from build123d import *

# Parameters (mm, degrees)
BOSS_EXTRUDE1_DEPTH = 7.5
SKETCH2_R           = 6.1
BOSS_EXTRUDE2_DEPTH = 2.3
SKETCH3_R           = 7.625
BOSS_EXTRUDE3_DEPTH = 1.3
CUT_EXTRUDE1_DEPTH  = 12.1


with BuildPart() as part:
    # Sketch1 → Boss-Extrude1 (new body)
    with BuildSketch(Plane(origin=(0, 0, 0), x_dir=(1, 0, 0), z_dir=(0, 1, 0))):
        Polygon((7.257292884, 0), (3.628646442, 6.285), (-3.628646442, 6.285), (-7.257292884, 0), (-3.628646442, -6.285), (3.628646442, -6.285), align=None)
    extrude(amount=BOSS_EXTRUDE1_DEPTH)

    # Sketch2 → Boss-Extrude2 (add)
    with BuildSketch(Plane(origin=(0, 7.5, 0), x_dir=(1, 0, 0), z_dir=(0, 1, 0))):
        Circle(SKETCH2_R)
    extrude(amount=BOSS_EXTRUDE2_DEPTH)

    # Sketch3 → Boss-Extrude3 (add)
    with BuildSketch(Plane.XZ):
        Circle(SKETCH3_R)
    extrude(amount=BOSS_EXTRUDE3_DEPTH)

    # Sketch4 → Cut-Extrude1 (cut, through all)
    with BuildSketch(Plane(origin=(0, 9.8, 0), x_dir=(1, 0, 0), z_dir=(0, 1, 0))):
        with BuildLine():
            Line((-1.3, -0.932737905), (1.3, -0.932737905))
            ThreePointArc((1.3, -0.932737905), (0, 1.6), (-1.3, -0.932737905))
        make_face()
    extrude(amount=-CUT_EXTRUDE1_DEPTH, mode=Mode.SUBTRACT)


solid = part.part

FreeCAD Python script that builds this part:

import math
import FreeCAD as App
import Part
import Sketcher
from FreeCAD import Vector
Q = App.Units.Quantity

doc = App.newDocument("Part")
body = doc.addObject("PartDesign::Body", "Body")

# Sketch on XZ plane
sketch1 = body.newObject("Sketcher::SketchObject", "Sketch")
sketch1.AttachmentSupport = (doc.getObject("XZ_Plane"), [""])
sketch1.MapMode = "FlatFace"
sketch1.addGeometry(Part.LineSegment(Vector(7, 0, 0), Vector(4, -6, 0)), False)
sketch1.addGeometry(Part.LineSegment(Vector(4, -6, 0), Vector(-4, -6, 0)), False)
sketch1.addGeometry(Part.LineSegment(Vector(-4, -6, 0), Vector(-7, 0, 0)), False)
sketch1.addGeometry(Part.LineSegment(Vector(-7, 0, 0), Vector(-4, 6, 0)), False)
sketch1.addGeometry(Part.LineSegment(Vector(-4, 6, 0), Vector(4, 6, 0)), False)
sketch1.addGeometry(Part.LineSegment(Vector(4, 6, 0), Vector(7, 0, 0)), False)
sketch1.addConstraint(Sketcher.Constraint("Coincident", 0, 2, 1, 1))
sketch1.addConstraint(Sketcher.Constraint("Coincident", 1, 2, 2, 1))
sketch1.addConstraint(Sketcher.Constraint("Coincident", 2, 2, 3, 1))
sketch1.addConstraint(Sketcher.Constraint("Coincident", 3, 2, 4, 1))
sketch1.addConstraint(Sketcher.Constraint("Coincident", 4, 2, 5, 1))
sketch1.addConstraint(Sketcher.Constraint("Coincident", 5, 2, 0, 1))
sketch1.addConstraint(Sketcher.Constraint("Horizontal", 1))
sketch1.addConstraint(Sketcher.Constraint("Horizontal", 4))
sketch1.addConstraint(Sketcher.Constraint("Symmetric", 0, 2, 3, 2, -1, 1))
sketch1.addConstraint(Sketcher.Constraint("Symmetric", 2, 2, 5, 2, -1, 1))
sketch1.addConstraint(Sketcher.Constraint("PointOnObject", 2, 2, -1))
sketch1.addConstraint(Sketcher.Constraint("Parallel", 2, 5))
sketch1.addConstraint(Sketcher.Constraint("Vertical", 1, 2, 3, 2))
sketch1.addConstraint(Sketcher.Constraint("Angle", 0, Q("-120 deg")))
sketch1.addConstraint(Sketcher.Constraint("DistanceY", 1, 2, 3, 2, 12.57))
sketch1.addConstraint(Sketcher.Constraint("DistanceX", 1, 2, 1, 1, 7.257293))
pad1 = body.newObject("PartDesign::Pad", "Pad")
pad1.Profile = sketch1
pad1.Length = 7.5
pad1.Reversed = True

# Sketch on XZ plane
sketch2 = body.newObject("Sketcher::SketchObject", "Sketch001")
sketch2.AttachmentSupport = (doc.getObject("XZ_Plane"), [""])
sketch2.MapMode = "FlatFace"
sketch2.AttachmentOffset = App.Placement(Vector(0, 0, -7.5), App.Rotation())
sketch2.addGeometry(Part.Circle(Vector(0, 0, 0), Vector(0, 0, 1), 6), False)
sketch2.addConstraint(Sketcher.Constraint("Coincident", 0, 3, -1, 1))
sketch2.addConstraint(Sketcher.Constraint("Diameter", 0, 12.2))
pad2 = body.newObject("PartDesign::Pad", "Pad001")
pad2.Profile = sketch2
pad2.Length = 2.3
pad2.Reversed = True

# Sketch on XZ plane
sketch3 = body.newObject("Sketcher::SketchObject", "Sketch002")
sketch3.AttachmentSupport = (doc.getObject("XZ_Plane"), [""])
sketch3.MapMode = "FlatFace"
sketch3.addGeometry(Part.Circle(Vector(0, 0, 0), Vector(0, 0, 1), 8), False)
sketch3.addConstraint(Sketcher.Constraint("Coincident", 0, 3, -1, 1))
sketch3.addConstraint(Sketcher.Constraint("Diameter", 0, 15.25))
pad3 = body.newObject("PartDesign::Pad", "Pad002")
pad3.Profile = sketch3
pad3.Length = 1.3

# Sketch on XZ plane
sketch4 = body.newObject("Sketcher::SketchObject", "Sketch003")
sketch4.AttachmentSupport = (doc.getObject("XZ_Plane"), [""])
sketch4.MapMode = "FlatFace"
sketch4.AttachmentOffset = App.Placement(Vector(0, 0, -9.8), App.Rotation())
sketch4.addGeometry(Part.LineSegment(Vector(-1.3, 0.9, 0), Vector(1.3, 0.9, 0)), False)
sketch4.addGeometry(Part.ArcOfCircle(Part.Circle(Vector(0, 0, 0), Vector(0, 0, 1), 1.6), math.radians(144), math.radians(396)), False)
sketch4.addConstraint(Sketcher.Constraint("Coincident", 0, 1, 1, 1))
sketch4.addConstraint(Sketcher.Constraint("Coincident", 1, 2, 0, 2))
sketch4.addConstraint(Sketcher.Constraint("Horizontal", 0))
sketch4.addConstraint(Sketcher.Constraint("Coincident", 1, 3, -1, 1))
sketch4.addConstraint(Sketcher.Constraint("Radius", 1, 1.6))
sketch4.addConstraint(Sketcher.Constraint("DistanceX", 0, 1, 0, 2, 2.6))
pocket1 = body.newObject("PartDesign::Pocket", "Pocket")
pocket1.Profile = sketch4
pocket1.Type = "ThroughAll"
pocket1.Reversed = True

doc.recompute()
